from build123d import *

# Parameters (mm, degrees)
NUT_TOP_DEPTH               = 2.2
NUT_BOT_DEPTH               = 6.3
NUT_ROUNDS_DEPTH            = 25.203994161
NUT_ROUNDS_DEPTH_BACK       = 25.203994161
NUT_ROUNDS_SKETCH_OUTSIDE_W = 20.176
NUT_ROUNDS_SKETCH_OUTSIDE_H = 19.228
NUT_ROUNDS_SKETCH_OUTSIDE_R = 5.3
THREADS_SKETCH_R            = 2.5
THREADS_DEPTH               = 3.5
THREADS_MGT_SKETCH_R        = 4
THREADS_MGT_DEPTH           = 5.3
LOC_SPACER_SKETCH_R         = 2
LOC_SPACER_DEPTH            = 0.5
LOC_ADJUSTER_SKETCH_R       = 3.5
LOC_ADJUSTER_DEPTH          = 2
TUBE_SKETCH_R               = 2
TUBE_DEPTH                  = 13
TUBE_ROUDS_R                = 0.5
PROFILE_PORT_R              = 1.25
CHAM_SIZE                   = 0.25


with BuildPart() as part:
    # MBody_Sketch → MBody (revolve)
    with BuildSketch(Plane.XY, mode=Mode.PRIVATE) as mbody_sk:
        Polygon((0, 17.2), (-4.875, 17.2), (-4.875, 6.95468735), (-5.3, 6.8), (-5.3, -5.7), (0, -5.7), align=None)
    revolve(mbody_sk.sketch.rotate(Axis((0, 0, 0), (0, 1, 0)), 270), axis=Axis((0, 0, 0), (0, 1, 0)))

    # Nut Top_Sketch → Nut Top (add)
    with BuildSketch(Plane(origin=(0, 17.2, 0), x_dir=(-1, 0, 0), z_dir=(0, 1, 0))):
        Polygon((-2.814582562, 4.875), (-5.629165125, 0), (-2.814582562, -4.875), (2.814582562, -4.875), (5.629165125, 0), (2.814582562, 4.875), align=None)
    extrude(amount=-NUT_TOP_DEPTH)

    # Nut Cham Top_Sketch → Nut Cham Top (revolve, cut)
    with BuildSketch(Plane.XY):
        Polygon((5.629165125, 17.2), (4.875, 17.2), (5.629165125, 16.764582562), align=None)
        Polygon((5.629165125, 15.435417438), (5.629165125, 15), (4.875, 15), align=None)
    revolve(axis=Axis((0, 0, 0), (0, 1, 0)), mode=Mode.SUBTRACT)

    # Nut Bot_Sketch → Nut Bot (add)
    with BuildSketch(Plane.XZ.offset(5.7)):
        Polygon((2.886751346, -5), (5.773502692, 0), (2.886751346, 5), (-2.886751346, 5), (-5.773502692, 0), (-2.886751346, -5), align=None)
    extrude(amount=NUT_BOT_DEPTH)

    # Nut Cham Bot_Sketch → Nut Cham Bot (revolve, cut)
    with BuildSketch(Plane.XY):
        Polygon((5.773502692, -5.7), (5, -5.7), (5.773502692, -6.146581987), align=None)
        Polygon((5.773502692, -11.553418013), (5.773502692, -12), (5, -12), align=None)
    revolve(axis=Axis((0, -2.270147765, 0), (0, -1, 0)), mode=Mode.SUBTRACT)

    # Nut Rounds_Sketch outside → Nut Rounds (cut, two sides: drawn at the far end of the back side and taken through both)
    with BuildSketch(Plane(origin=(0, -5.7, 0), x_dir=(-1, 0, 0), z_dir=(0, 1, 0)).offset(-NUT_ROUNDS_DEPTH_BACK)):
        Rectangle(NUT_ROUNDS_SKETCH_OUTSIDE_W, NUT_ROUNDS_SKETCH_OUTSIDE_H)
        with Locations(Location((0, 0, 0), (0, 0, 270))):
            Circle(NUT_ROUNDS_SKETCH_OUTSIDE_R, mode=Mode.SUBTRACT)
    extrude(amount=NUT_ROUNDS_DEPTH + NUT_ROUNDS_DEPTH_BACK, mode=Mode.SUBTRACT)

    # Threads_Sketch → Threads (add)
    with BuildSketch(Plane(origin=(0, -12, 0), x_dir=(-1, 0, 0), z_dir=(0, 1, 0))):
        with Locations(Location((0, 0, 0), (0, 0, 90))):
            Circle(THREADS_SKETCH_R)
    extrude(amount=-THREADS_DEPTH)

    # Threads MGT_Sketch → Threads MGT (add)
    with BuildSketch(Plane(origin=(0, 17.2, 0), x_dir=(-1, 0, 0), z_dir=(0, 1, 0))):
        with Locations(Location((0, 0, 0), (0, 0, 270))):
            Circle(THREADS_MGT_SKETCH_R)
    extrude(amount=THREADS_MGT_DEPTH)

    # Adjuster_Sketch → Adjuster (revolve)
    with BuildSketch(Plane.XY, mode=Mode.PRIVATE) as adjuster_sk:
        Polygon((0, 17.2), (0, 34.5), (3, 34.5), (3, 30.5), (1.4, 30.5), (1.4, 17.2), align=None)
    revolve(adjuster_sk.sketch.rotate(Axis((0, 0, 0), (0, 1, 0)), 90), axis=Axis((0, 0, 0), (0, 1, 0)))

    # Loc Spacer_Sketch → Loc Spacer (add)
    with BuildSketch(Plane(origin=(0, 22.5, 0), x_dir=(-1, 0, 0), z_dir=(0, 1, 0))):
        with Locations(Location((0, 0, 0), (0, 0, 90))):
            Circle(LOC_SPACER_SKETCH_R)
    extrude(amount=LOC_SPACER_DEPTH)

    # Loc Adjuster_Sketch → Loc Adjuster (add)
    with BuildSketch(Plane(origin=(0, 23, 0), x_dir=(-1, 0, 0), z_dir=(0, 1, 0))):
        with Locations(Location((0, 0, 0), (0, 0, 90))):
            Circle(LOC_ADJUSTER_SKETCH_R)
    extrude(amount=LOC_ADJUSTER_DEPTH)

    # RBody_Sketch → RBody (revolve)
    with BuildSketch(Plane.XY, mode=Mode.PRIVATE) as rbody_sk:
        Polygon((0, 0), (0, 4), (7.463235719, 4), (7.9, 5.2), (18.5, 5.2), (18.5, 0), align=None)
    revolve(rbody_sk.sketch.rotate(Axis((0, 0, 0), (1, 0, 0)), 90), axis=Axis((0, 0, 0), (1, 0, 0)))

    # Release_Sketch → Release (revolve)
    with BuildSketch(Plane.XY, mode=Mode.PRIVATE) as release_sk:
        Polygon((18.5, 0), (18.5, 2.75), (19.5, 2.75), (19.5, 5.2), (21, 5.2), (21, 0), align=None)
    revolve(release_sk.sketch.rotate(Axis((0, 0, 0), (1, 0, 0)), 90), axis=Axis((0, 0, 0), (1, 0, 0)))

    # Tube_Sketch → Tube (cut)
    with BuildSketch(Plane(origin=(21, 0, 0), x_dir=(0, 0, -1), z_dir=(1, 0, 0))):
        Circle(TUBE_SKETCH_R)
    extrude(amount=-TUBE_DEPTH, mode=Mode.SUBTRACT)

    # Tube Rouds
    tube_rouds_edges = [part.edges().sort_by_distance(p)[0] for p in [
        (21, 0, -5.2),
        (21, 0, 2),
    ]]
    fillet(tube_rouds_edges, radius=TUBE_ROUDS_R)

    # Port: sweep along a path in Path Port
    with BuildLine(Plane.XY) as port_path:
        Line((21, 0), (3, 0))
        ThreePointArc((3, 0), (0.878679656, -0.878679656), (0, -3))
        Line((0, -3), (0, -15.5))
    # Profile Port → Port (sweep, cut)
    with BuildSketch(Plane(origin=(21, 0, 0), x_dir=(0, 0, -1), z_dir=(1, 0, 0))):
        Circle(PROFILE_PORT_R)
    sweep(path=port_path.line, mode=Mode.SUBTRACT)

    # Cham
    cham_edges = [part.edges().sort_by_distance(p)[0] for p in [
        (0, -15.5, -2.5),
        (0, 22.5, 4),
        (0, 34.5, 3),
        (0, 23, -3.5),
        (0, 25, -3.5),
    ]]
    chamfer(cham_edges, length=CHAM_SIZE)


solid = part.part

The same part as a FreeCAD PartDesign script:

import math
import FreeCAD as App
import Part
import Sketcher

V = App.Vector
Q = App.Units.Quantity


def edges_at(feature, points):
    """Names of the edges that pass closest to the given points."""
    edges = feature.Shape.Edges
    near = lambda p: min(range(len(edges)), key=lambda i: edges[i].distToShape(Part.Vertex(*p))[0])
    return sorted({f"Edge{near(p) + 1}" for p in points})

doc = App.newDocument("Part")
body = doc.addObject("PartDesign::Body", "Body")

# Sketch on XY plane
sketch1 = doc.addObject("Sketcher::SketchObject", "Sketch")
body.addObject(sketch1)
sketch1.AttachmentSupport = (doc.XY_Plane, [""])
sketch1.MapMode = "FlatFace"
sketch1.addGeometry(Part.LineSegment(V(0, 17.2, 0), V(-4.88, 17.2, 0)), False)
sketch1.addGeometry(Part.LineSegment(V(-4.88, 17.2, 0), V(-4.88, 6.95, 0)), False)
sketch1.addGeometry(Part.LineSegment(V(-4.88, 6.95, 0), V(-5.3, 6.8, 0)), False)
sketch1.addGeometry(Part.LineSegment(V(-5.3, 6.8, 0), V(-5.3, -5.7, 0)), False)
sketch1.addGeometry(Part.LineSegment(V(-5.3, -5.7, 0), V(0, -5.7, 0)), False)
sketch1.addGeometry(Part.LineSegment(V(0, -5.7, 0), V(0, 17.2, 0)), False)
sketch1.addConstraint(Sketcher.Constraint("Coincident", 0, 2, 1, 1))
sketch1.addConstraint(Sketcher.Constraint("Coincident", 1, 2, 2, 1))
sketch1.addConstraint(Sketcher.Constraint("Coincident", 2, 2, 3, 1))
sketch1.addConstraint(Sketcher.Constraint("Coincident", 3, 2, 4, 1))
sketch1.addConstraint(Sketcher.Constraint("Coincident", 4, 2, 5, 1))
sketch1.addConstraint(Sketcher.Constraint("Coincident", 5, 2, 0, 1))
sketch1.addConstraint(Sketcher.Constraint("Horizontal", 0))
sketch1.addConstraint(Sketcher.Constraint("Vertical", 1))
sketch1.addConstraint(Sketcher.Constraint("Vertical", 3))
sketch1.addConstraint(Sketcher.Constraint("Horizontal", 4))
sketch1.addConstraint(Sketcher.Constraint("Vertical", 5))
sketch1.addConstraint(Sketcher.Constraint("PointOnObject", 4, 2, -2))
sketch1.addConstraint(Sketcher.Constraint("Angle", 2, Q("-160 deg")))
sketch1.addConstraint(Sketcher.Constraint("DistanceX", 4, 1, 4, 2, Q("5.3 mm")))
sketch1.addConstraint(Sketcher.Constraint("DistanceY", 3, 2, 3, 1, Q("12.5 mm")))
sketch1.addConstraint(Sketcher.Constraint("DistanceY", 5, 1, 5, 2, Q("22.9 mm")))
sketch1.addConstraint(Sketcher.Constraint("DistanceY", -1, 1, 0, 2, Q("17.2 mm")))
sketch1.addConstraint(Sketcher.Constraint("DistanceX", 0, 2, 0, 1, Q("4.875 mm")))
revolution = doc.addObject("PartDesign::Revolution", "Revolution")
body.addObject(revolution)
revolution.Profile = sketch1
revolution.ReferenceAxis = (sketch1, ["V_Axis"])
revolution.Angle = 360

# Sketch on XZ plane
sketch2 = doc.addObject("Sketcher::SketchObject", "Sketch001")
body.addObject(sketch2)
sketch2.AttachmentSupport = (doc.XZ_Plane, [""])
sketch2.MapMode = "FlatFace"
sketch2.AttachmentOffset = App.Placement(V(0, 0, -17.2), App.Rotation())
sketch2.addGeometry(Part.LineSegment(V(3, 5, 0), V(6, 0, 0)), False)
sketch2.addGeometry(Part.LineSegment(V(6, 0, 0), V(3, -5, 0)), False)
sketch2.addGeometry(Part.LineSegment(V(3, -5, 0), V(-3, -5, 0)), False)
sketch2.addGeometry(Part.LineSegment(V(-3, -5, 0), V(-6, 0, 0)), False)
sketch2.addGeometry(Part.LineSegment(V(-6, 0, 0), V(-3, 5, 0)), False)
sketch2.addGeometry(Part.LineSegment(V(-3, 5, 0), V(3, 5, 0)), False)
sketch2.addConstraint(Sketcher.Constraint("Coincident", 0, 2, 1, 1))
sketch2.addConstraint(Sketcher.Constraint("Coincident", 1, 2, 2, 1))
sketch2.addConstraint(Sketcher.Constraint("Coincident", 2, 2, 3, 1))
sketch2.addConstraint(Sketcher.Constraint("Coincident", 3, 2, 4, 1))
sketch2.addConstraint(Sketcher.Constraint("Coincident", 4, 2, 5, 1))
sketch2.addConstraint(Sketcher.Constraint("Coincident", 5, 2, 0, 1))
sketch2.addConstraint(Sketcher.Constraint("Horizontal", 2))
sketch2.addConstraint(Sketcher.Constraint("Horizontal", 5))
sketch2.addConstraint(Sketcher.Constraint("Symmetric", 0, 2, 3, 2, -1, 1))
sketch2.addConstraint(Sketcher.Constraint("Symmetric", 1, 2, 4, 2, -1, 1))
sketch2.addConstraint(Sketcher.Constraint("PointOnObject", 0, 2, -1))
sketch2.addConstraint(Sketcher.Constraint("Parallel", 0, 3))
sketch2.addConstraint(Sketcher.Constraint("Vertical", 2, 2, 4, 2))
sketch2.addConstraint(Sketcher.Constraint("Angle", 0, Q("-60 deg")))
sketch2.addConstraint(Sketcher.Constraint("DistanceY", 2, 2, 4, 2, Q("9.75 mm")))
sketch2.addConstraint(Sketcher.Constraint("DistanceX", 2, 2, 2, 1, Q("5.629165 mm")))
pad1 = doc.addObject("PartDesign::Pad", "Pad")
body.addObject(pad1)
pad1.Profile = sketch2
pad1.Length = 2.2

# Sketch on XY plane
sketch3 = doc.addObject("Sketcher::SketchObject", "Sketch002")
body.addObject(sketch3)
sketch3.AttachmentSupport = (doc.XY_Plane, [""])
sketch3.MapMode = "FlatFace"
sketch3.addGeometry(Part.LineSegment(V(5.63, 17.2, 0), V(4.88, 17.2, 0)), False)
sketch3.addGeometry(Part.LineSegment(V(4.88, 17.2, 0), V(5.63, 16.76, 0)), False)
sketch3.addGeometry(Part.LineSegment(V(5.63, 16.76, 0), V(5.63, 17.2, 0)), False)
sketch3.addGeometry(Part.LineSegment(V(5.63, 15, 0), V(5.63, 15.44, 0)), False)
sketch3.addGeometry(Part.LineSegment(V(5.63, 15.44, 0), V(4.88, 15, 0)), False)
sketch3.addGeometry(Part.LineSegment(V(4.88, 15, 0), V(5.63, 15, 0)), False)
sketch3.addConstraint(Sketcher.Constraint("Coincident", 0, 2, 1, 1))
sketch3.addConstraint(Sketcher.Constraint("Coincident", 1, 2, 2, 1))
sketch3.addConstraint(Sketcher.Constraint("Coincident", 2, 2, 0, 1))
sketch3.addConstraint(Sketcher.Constraint("Coincident", 3, 2, 4, 1))
sketch3.addConstraint(Sketcher.Constraint("Coincident", 4, 2, 5, 1))
sketch3.addConstraint(Sketcher.Constraint("Coincident", 5, 2, 3, 1))
sketch3.addConstraint(Sketcher.Constraint("Horizontal", 0))
sketch3.addConstraint(Sketcher.Constraint("Vertical", 2))
sketch3.addConstraint(Sketcher.Constraint("Vertical", 3))
sketch3.addConstraint(Sketcher.Constraint("Horizontal", 5))
sketch3.addConstraint(Sketcher.Constraint("Vertical", 2, 2, 3, 2))
sketch3.addConstraint(Sketcher.Constraint("Vertical", 0, 2, 4, 2))
sketch3.addConstraint(Sketcher.Constraint("Equal", 2, 3))
sketch3.addConstraint(Sketcher.Constraint("Angle", 1, Q("-30 deg")))
sketch3.addConstraint(Sketcher.Constraint("DistanceY", -1, 1, 4, 2, Q("15 mm")))
sketch3.addConstraint(Sketcher.Constraint("DistanceY", -1, 1, 0, 2, Q("17.2 mm")))
sketch3.addConstraint(Sketcher.Constraint("DistanceX", -1, 1, 0, 2, Q("4.875 mm")))
sketch3.addConstraint(Sketcher.Constraint("DistanceX", 0, 2, 0, 1, Q("0.754165 mm")))
groove = doc.addObject("PartDesign::Groove", "Groove")
body.addObject(groove)
groove.Profile = sketch3
groove.ReferenceAxis = (sketch3, ["V_Axis"])
groove.Angle = 360

# Sketch on XZ plane
sketch4 = doc.addObject("Sketcher::SketchObject", "Sketch003")
body.addObject(sketch4)
sketch4.AttachmentSupport = (doc.XZ_Plane, [""])
sketch4.MapMode = "FlatFace"
sketch4.AttachmentOffset = App.Placement(V(0, 0, 5.7), App.Rotation())
sketch4.addGeometry(Part.LineSegment(V(3, -5, 0), V(6, 0, 0)), False)
sketch4.addGeometry(Part.LineSegment(V(6, 0, 0), V(3, 5, 0)), False)
sketch4.addGeometry(Part.LineSegment(V(3, 5, 0), V(-3, 5, 0)), False)
sketch4.addGeometry(Part.LineSegment(V(-3, 5, 0), V(-6, 0, 0)), False)
sketch4.addGeometry(Part.LineSegment(V(-6, 0, 0), V(-3, -5, 0)), False)
sketch4.addGeometry(Part.LineSegment(V(-3, -5, 0), V(3, -5, 0)), False)
sketch4.addConstraint(Sketcher.Constraint("Coincident", 0, 2, 1, 1))
sketch4.addConstraint(Sketcher.Constraint("Coincident", 1, 2, 2, 1))
sketch4.addConstraint(Sketcher.Constraint("Coincident", 2, 2, 3, 1))
sketch4.addConstraint(Sketcher.Constraint("Coincident", 3, 2, 4, 1))
sketch4.addConstraint(Sketcher.Constraint("Coincident", 4, 2, 5, 1))
sketch4.addConstraint(Sketcher.Constraint("Coincident", 5, 2, 0, 1))
sketch4.addConstraint(Sketcher.Constraint("Horizontal", 2))
sketch4.addConstraint(Sketcher.Constraint("Horizontal", 5))
sketch4.addConstraint(Sketcher.Constraint("Symmetric", 0, 2, 3, 2, -1, 1))
sketch4.addConstraint(Sketcher.Constraint("Symmetric", 1, 2, 4, 2, -1, 1))
sketch4.addConstraint(Sketcher.Constraint("PointOnObject", 0, 2, -1))
sketch4.addConstraint(Sketcher.Constraint("Parallel", 0, 3))
sketch4.addConstraint(Sketcher.Constraint("Vertical", 2, 2, 4, 2))
sketch4.addConstraint(Sketcher.Constraint("Angle", 0, Q("60 deg")))
sketch4.addConstraint(Sketcher.Constraint("DistanceY", -1, 1, 1, 2, Q("5 mm")))
sketch4.addConstraint(Sketcher.Constraint("DistanceX", 2, 2, 2, 1, Q("5.773503 mm")))
pad2 = doc.addObject("PartDesign::Pad", "Pad001")
body.addObject(pad2)
pad2.Profile = sketch4
pad2.Length = 6.3

# Sketch on XY plane
sketch5 = doc.addObject("Sketcher::SketchObject", "Sketch004")
body.addObject(sketch5)
sketch5.AttachmentSupport = (doc.XY_Plane, [""])
sketch5.MapMode = "FlatFace"
sketch5.addGeometry(Part.LineSegment(V(5.77, -5.7, 0), V(5, -5.7, 0)), False)
sketch5.addGeometry(Part.LineSegment(V(5, -5.7, 0), V(5.77, -6.15, 0)), False)
sketch5.addGeometry(Part.LineSegment(V(5.77, -6.15, 0), V(5.77, -5.7, 0)), False)
sketch5.addGeometry(Part.LineSegment(V(5.77, -12, 0), V(5.77, -11.55, 0)), False)
sketch5.addGeometry(Part.LineSegment(V(5.77, -11.55, 0), V(5, -12, 0)), False)
sketch5.addGeometry(Part.LineSegment(V(5, -12, 0), V(5.77, -12, 0)), False)
sketch5.addConstraint(Sketcher.Constraint("Coincident", 0, 2, 1, 1))
sketch5.addConstraint(Sketcher.Constraint("Coincident", 1, 2, 2, 1))
sketch5.addConstraint(Sketcher.Constraint("Coincident", 2, 2, 0, 1))
sketch5.addConstraint(Sketcher.Constraint("Coincident", 3, 2, 4, 1))
sketch5.addConstraint(Sketcher.Constraint("Coincident", 4, 2, 5, 1))
sketch5.addConstraint(Sketcher.Constraint("Coincident", 5, 2, 3, 1))
sketch5.addConstraint(Sketcher.Constraint("Horizontal", 0))
sketch5.addConstraint(Sketcher.Constraint("Vertical", 2))
sketch5.addConstraint(Sketcher.Constraint("Vertical", 3))
sketch5.addConstraint(Sketcher.Constraint("Horizontal", 5))
sketch5.addConstraint(Sketcher.Constraint("Vertical", 2, 2, 3, 2))
sketch5.addConstraint(Sketcher.Constraint("Vertical", 0, 2, 4, 2))
sketch5.addConstraint(Sketcher.Constraint("Equal", 2, 3))
sketch5.addConstraint(Sketcher.Constraint("Angle", 1, Q("-30 deg")))
sketch5.addConstraint(Sketcher.Constraint("DistanceX", -1, 1, 0, 2, Q("5 mm")))
sketch5.addConstraint(Sketcher.Constraint("DistanceY", 4, 2, -1, 1, Q("12 mm")))
sketch5.addConstraint(Sketcher.Constraint("DistanceY", 0, 2, -1, 1, Q("5.7 mm")))
sketch5.addConstraint(Sketcher.Constraint("DistanceY", 2, 1, 2, 2, Q("0.446582 mm")))
groove2 = doc.addObject("PartDesign::Groove", "Groove001")
body.addObject(groove2)
groove2.Profile = sketch5
groove2.ReferenceAxis = (sketch5, ["V_Axis"])
groove2.Angle = 360

# Sketch on XZ plane
sketch6 = doc.addObject("Sketcher::SketchObject", "Sketch005")
body.addObject(sketch6)
sketch6.AttachmentSupport = (doc.XZ_Plane, [""])
sketch6.MapMode = "FlatFace"
sketch6.AttachmentOffset = App.Placement(V(0, 0, 5.7), App.Rotation())
sketch6.addGeometry(Part.LineSegment(V(10, 10, 0), V(10, -10, 0)), False)
sketch6.addGeometry(Part.LineSegment(V(10, -10, 0), V(-10, -10, 0)), False)
sketch6.addGeometry(Part.LineSegment(V(-10, -10, 0), V(-10, 10, 0)), False)
sketch6.addGeometry(Part.LineSegment(V(-10, 10, 0), V(10, 10, 0)), False)
sketch6.addGeometry(Part.Circle(V(0, 0, 0), V(0, 0, 1), 5), False)
sketch6.addConstraint(Sketcher.Constraint("Coincident", 0, 2, 1, 1))
sketch6.addConstraint(Sketcher.Constraint("Coincident", 1, 2, 2, 1))
sketch6.addConstraint(Sketcher.Constraint("Coincident", 2, 2, 3, 1))
sketch6.addConstraint(Sketcher.Constraint("Coincident", 3, 2, 0, 1))
sketch6.addConstraint(Sketcher.Constraint("Vertical", 0))
sketch6.addConstraint(Sketcher.Constraint("Horizontal", 1))
sketch6.addConstraint(Sketcher.Constraint("Vertical", 2))
sketch6.addConstraint(Sketcher.Constraint("Horizontal", 3))
sketch6.addConstraint(Sketcher.Constraint("Coincident", 4, 3, -1, 1))
sketch6.addConstraint(Sketcher.Constraint("Symmetric", 0, 2, 2, 2, -1, 1))
sketch6.addConstraint(Sketcher.Constraint("Diameter", 4, Q("10.6 mm")))
sketch6.addConstraint(Sketcher.Constraint("DistanceX", 1, 2, 1, 1, Q("20.176 mm")))
sketch6.addConstraint(Sketcher.Constraint("DistanceY", 0, 2, 0, 1, Q("19.228 mm")))
pocket1 = doc.addObject("PartDesign::Pocket", "Pocket")
body.addObject(pocket1)
pocket1.Profile = sketch6
pocket1.Type = "ThroughAll"
pocket1.Midplane = True

# Sketch on XZ plane
sketch7 = doc.addObject("Sketcher::SketchObject", "Sketch006")
body.addObject(sketch7)
sketch7.AttachmentSupport = (doc.XZ_Plane, [""])
sketch7.MapMode = "FlatFace"
sketch7.AttachmentOffset = App.Placement(V(0, 0, 12), App.Rotation())
sketch7.addGeometry(Part.Circle(V(0, 0, 0), V(0, 0, 1), 2.5), False)
sketch7.addConstraint(Sketcher.Constraint("Coincident", 0, 3, -1, 1))
sketch7.addConstraint(Sketcher.Constraint("Diameter", 0, Q("5 mm")))
pad3 = doc.addObject("PartDesign::Pad", "Pad002")
body.addObject(pad3)
pad3.Profile = sketch7
pad3.Length = 3.5

# Sketch on XZ plane
sketch8 = doc.addObject("Sketcher::SketchObject", "Sketch007")
body.addObject(sketch8)
sketch8.AttachmentSupport = (doc.XZ_Plane, [""])
sketch8.MapMode = "FlatFace"
sketch8.AttachmentOffset = App.Placement(V(0, 0, -17.2), App.Rotation())
sketch8.addGeometry(Part.Circle(V(0, 0, 0), V(0, 0, 1), 4), False)
sketch8.addConstraint(Sketcher.Constraint("Coincident", 0, 3, -1, 1))
sketch8.addConstraint(Sketcher.Constraint("Diameter", 0, Q("8 mm")))
pad4 = doc.addObject("PartDesign::Pad", "Pad003")
body.addObject(pad4)
pad4.Profile = sketch8
pad4.Length = 5.3
pad4.Reversed = True

# Sketch on XY plane
sketch9 = doc.addObject("Sketcher::SketchObject", "Sketch008")
body.addObject(sketch9)
sketch9.AttachmentSupport = (doc.XY_Plane, [""])
sketch9.MapMode = "FlatFace"
sketch9.addGeometry(Part.LineSegment(V(0, 34.5, 0), V(0, 17.2, 0)), False)
sketch9.addGeometry(Part.LineSegment(V(0, 17.2, 0), V(1.4, 17.2, 0)), False)
sketch9.addGeometry(Part.LineSegment(V(1.4, 17.2, 0), V(1.4, 30.5, 0)), False)
sketch9.addGeometry(Part.LineSegment(V(1.4, 30.5, 0), V(3, 30.5, 0)), False)
sketch9.addGeometry(Part.LineSegment(V(3, 30.5, 0), V(3, 34.5, 0)), False)
sketch9.addGeometry(Part.LineSegment(V(3, 34.5, 0), V(0, 34.5, 0)), False)
sketch9.addConstraint(Sketcher.Constraint("Coincident", 0, 2, 1, 1))
sketch9.addConstraint(Sketcher.Constraint("Coincident", 1, 2, 2, 1))
sketch9.addConstraint(Sketcher.Constraint("Coincident", 2, 2, 3, 1))
sketch9.addConstraint(Sketcher.Constraint("Coincident", 3, 2, 4, 1))
sketch9.addConstraint(Sketcher.Constraint("Coincident", 4, 2, 5, 1))
sketch9.addConstraint(Sketcher.Constraint("Coincident", 5, 2, 0, 1))
sketch9.addConstraint(Sketcher.Constraint("Vertical", 0))
sketch9.addConstraint(Sketcher.Constraint("Horizontal", 1))
sketch9.addConstraint(Sketcher.Constraint("Vertical", 2))
sketch9.addConstraint(Sketcher.Constraint("Horizontal", 3))
sketch9.addConstraint(Sketcher.Constraint("Vertical", 4))
sketch9.addConstraint(Sketcher.Constraint("Horizontal", 5))
sketch9.addConstraint(Sketcher.Constraint("PointOnObject", 0, 2, -2))
sketch9.addConstraint(Sketcher.Constraint("DistanceX", 5, 2, 5, 1, Q("3 mm")))
sketch9.addConstraint(Sketcher.Constraint("DistanceY", 4, 1, 4, 2, Q("4 mm")))
sketch9.addConstraint(Sketcher.Constraint("DistanceX", 1, 1, 1, 2, Q("1.4 mm")))
sketch9.addConstraint(Sketcher.Constraint("DistanceY", 0, 2, 0, 1, Q("17.3 mm")))
sketch9.addConstraint(Sketcher.Constraint("DistanceY", -1, 1, 0, 2, Q("17.2 mm")))
revolution2 = doc.addObject("PartDesign::Revolution", "Revolution001")
body.addObject(revolution2)
revolution2.Profile = sketch9
revolution2.ReferenceAxis = (sketch9, ["V_Axis"])
revolution2.Angle = 360

# Sketch on XZ plane
sketch10 = doc.addObject("Sketcher::SketchObject", "Sketch009")
body.addObject(sketch10)
sketch10.AttachmentSupport = (doc.XZ_Plane, [""])
sketch10.MapMode = "FlatFace"
sketch10.AttachmentOffset = App.Placement(V(0, 0, -22.5), App.Rotation())
sketch10.addGeometry(Part.Circle(V(0, 0, 0), V(0, 0, 1), 2), False)
sketch10.addConstraint(Sketcher.Constraint("Coincident", 0, 3, -1, 1))
sketch10.addConstraint(Sketcher.Constraint("Diameter", 0, Q("4 mm")))
pad5 = doc.addObject("PartDesign::Pad", "Pad004")
body.addObject(pad5)
pad5.Profile = sketch10
pad5.Length = 0.5
pad5.Reversed = True

# Sketch on XZ plane
sketch11 = doc.addObject("Sketcher::SketchObject", "Sketch010")
body.addObject(sketch11)
sketch11.AttachmentSupport = (doc.XZ_Plane, [""])
sketch11.MapMode = "FlatFace"
sketch11.AttachmentOffset = App.Placement(V(0, 0, -23), App.Rotation())
sketch11.addGeometry(Part.Circle(V(0, 0, 0), V(0, 0, 1), 3.5), False)
sketch11.addConstraint(Sketcher.Constraint("Coincident", 0, 3, -1, 1))
sketch11.addConstraint(Sketcher.Constraint("Diameter", 0, Q("7 mm")))
pad6 = doc.addObject("PartDesign::Pad", "Pad005")
body.addObject(pad6)
pad6.Profile = sketch11
pad6.Length = 2
pad6.Reversed = True

# Sketch on XY plane
sketch12 = doc.addObject("Sketcher::SketchObject", "Sketch011")
body.addObject(sketch12)
sketch12.AttachmentSupport = (doc.XY_Plane, [""])
sketch12.MapMode = "FlatFace"
sketch12.addGeometry(Part.LineSegment(V(0, 4, 0), V(0, 0, 0)), False)
sketch12.addGeometry(Part.LineSegment(V(0, 0, 0), V(18.5, 0, 0)), False)
sketch12.addGeometry(Part.LineSegment(V(18.5, 0, 0), V(18.5, 5.2, 0)), False)
sketch12.addGeometry(Part.LineSegment(V(18.5, 5.2, 0), V(7.9, 5.2, 0)), False)
sketch12.addGeometry(Part.LineSegment(V(7.9, 5.2, 0), V(7.5, 4, 0)), False)
sketch12.addGeometry(Part.LineSegment(V(7.5, 4, 0), V(0, 4, 0)), False)
sketch12.addConstraint(Sketcher.Constraint("Coincident", 0, 2, 1, 1))
sketch12.addConstraint(Sketcher.Constraint("Coincident", 1, 2, 2, 1))
sketch12.addConstraint(Sketcher.Constraint("Coincident", 2, 2, 3, 1))
sketch12.addConstraint(Sketcher.Constraint("Coincident", 3, 2, 4, 1))
sketch12.addConstraint(Sketcher.Constraint("Coincident", 4, 2, 5, 1))
sketch12.addConstraint(Sketcher.Constraint("Coincident", 5, 2, 0, 1))
sketch12.addConstraint(Sketcher.Constraint("Vertical", 0))
sketch12.addConstraint(Sketcher.Constraint("Horizontal", 1))
sketch12.addConstraint(Sketcher.Constraint("Vertical", 2))
sketch12.addConstraint(Sketcher.Constraint("Horizontal", 3))
sketch12.addConstraint(Sketcher.Constraint("Horizontal", 5))
sketch12.addConstraint(Sketcher.Constraint("Coincident", 0, 2, -1, 1))
sketch12.addConstraint(Sketcher.Constraint("DistanceY", 0, 2, 0, 1, Q("4 mm")))
sketch12.addConstraint(Sketcher.Constraint("Angle", 4, Q("-110 deg")))
sketch12.addConstraint(Sketcher.Constraint("DistanceX", 1, 1, 1, 2, Q("18.5 mm")))
sketch12.addConstraint(Sketcher.Constraint("DistanceX", 3, 2, 3, 1, Q("10.6 mm")))
sketch12.addConstraint(Sketcher.Constraint("DistanceY", 2, 1, 2, 2, Q("5.2 mm")))
revolution3 = doc.addObject("PartDesign::Revolution", "Revolution002")
body.addObject(revolution3)
revolution3.Profile = sketch12
revolution3.ReferenceAxis = (sketch12, ["H_Axis"])
revolution3.Angle = 360

# Sketch on XY plane
sketch13 = doc.addObject("Sketcher::SketchObject", "Sketch012")
body.addObject(sketch13)
sketch13.AttachmentSupport = (doc.XY_Plane, [""])
sketch13.MapMode = "FlatFace"
sketch13.addGeometry(Part.LineSegment(V(18.5, 2.8, 0), V(18.5, 0, 0)), False)
sketch13.addGeometry(Part.LineSegment(V(18.5, 0, 0), V(21, 0, 0)), False)
sketch13.addGeometry(Part.LineSegment(V(21, 0, 0), V(21, 5.2, 0)), False)
sketch13.addGeometry(Part.LineSegment(V(21, 5.2, 0), V(19.5, 5.2, 0)), False)
sketch13.addGeometry(Part.LineSegment(V(19.5, 5.2, 0), V(19.5, 2.8, 0)), False)
sketch13.addGeometry(Part.LineSegment(V(19.5, 2.8, 0), V(18.5, 2.8, 0)), False)
sketch13.addConstraint(Sketcher.Constraint("Coincident", 0, 2, 1, 1))
sketch13.addConstraint(Sketcher.Constraint("Coincident", 1, 2, 2, 1))
sketch13.addConstraint(Sketcher.Constraint("Coincident", 2, 2, 3, 1))
sketch13.addConstraint(Sketcher.Constraint("Coincident", 3, 2, 4, 1))
sketch13.addConstraint(Sketcher.Constraint("Coincident", 4, 2, 5, 1))
sketch13.addConstraint(Sketcher.Constraint("Coincident", 5, 2, 0, 1))
sketch13.addConstraint(Sketcher.Constraint("Vertical", 0))
sketch13.addConstraint(Sketcher.Constraint("Horizontal", 1))
sketch13.addConstraint(Sketcher.Constraint("Vertical", 2))
sketch13.addConstraint(Sketcher.Constraint("Horizontal", 3))
sketch13.addConstraint(Sketcher.Constraint("Vertical", 4))
sketch13.addConstraint(Sketcher.Constraint("Horizontal", 5))
sketch13.addConstraint(Sketcher.Constraint("PointOnObject", 0, 2, -1))
sketch13.addConstraint(Sketcher.Constraint("DistanceX", 5, 2, 5, 1, Q("1 mm")))
sketch13.addConstraint(Sketcher.Constraint("DistanceX", 1, 1, 1, 2, Q("2.5 mm")))
sketch13.addConstraint(Sketcher.Constraint("DistanceY", 2, 1, 2, 2, Q("5.2 mm")))
sketch13.addConstraint(Sketcher.Constraint("DistanceX", -1, 1, 1, 2, Q("21 mm")))
sketch13.addConstraint(Sketcher.Constraint("DistanceY", 0, 2, 0, 1, Q("2.75 mm")))
revolution4 = doc.addObject("PartDesign::Revolution", "Revolution003")
body.addObject(revolution4)
revolution4.Profile = sketch13
revolution4.ReferenceAxis = (sketch13, ["H_Axis"])
revolution4.Angle = 360

# Sketch on YZ plane
sketch14 = doc.addObject("Sketcher::SketchObject", "Sketch013")
body.addObject(sketch14)
sketch14.AttachmentSupport = (doc.YZ_Plane, [""])
sketch14.MapMode = "FlatFace"
sketch14.AttachmentOffset = App.Placement(V(0, 0, 21), App.Rotation())
sketch14.addGeometry(Part.Circle(V(0, 0, 0), V(0, 0, 1), 2), False)
sketch14.addConstraint(Sketcher.Constraint("Coincident", 0, 3, -1, 1))
sketch14.addConstraint(Sketcher.Constraint("Diameter", 0, Q("4 mm")))
pocket2 = doc.addObject("PartDesign::Pocket", "Pocket001")
body.addObject(pocket2)
pocket2.Profile = sketch14
pocket2.Length = 13
doc.recompute()

fillet = doc.addObject("PartDesign::Fillet", "Fillet")
body.addObject(fillet)
fillet.Base = (pocket2, edges_at(pocket2, [(21, 0, -5.2), (21, 0, 2)]))
fillet.Radius = 0.5

# Sketch on YZ plane
sketch15 = doc.addObject("Sketcher::SketchObject", "Sketch014")
body.addObject(sketch15)
sketch15.AttachmentSupport = (doc.YZ_Plane, [""])
sketch15.MapMode = "FlatFace"
sketch15.AttachmentOffset = App.Placement(V(0, 0, 21), App.Rotation())
sketch15.addGeometry(Part.Circle(V(0, 0, 0), V(0, 0, 1), 1.2), False)
sketch15.addConstraint(Sketcher.Constraint("Coincident", 0, 3, -1, 1))
sketch15.addConstraint(Sketcher.Constraint("Diameter", 0, Q("2.5 mm")))

# Sketch on XY plane
sketch16 = doc.addObject("Sketcher::SketchObject", "Sketch015")
body.addObject(sketch16)
sketch16.AttachmentSupport = (doc.XY_Plane, [""])
sketch16.MapMode = "FlatFace"
sketch16.addGeometry(Part.LineSegment(V(21, 0, 0), V(3, 0, 0)), False)
sketch16.addGeometry(Part.ArcOfCircle(Part.Circle(V(3, -3, 0), V(0, 0, 1), 3), math.radians(90), math.radians(180)), False)
sketch16.addGeometry(Part.LineSegment(V(0, -3, 0), V(0, -15.5, 0)), False)
sketch16.addConstraint(Sketcher.Constraint("Tangent", 0, 2, 1, 1))
sketch16.addConstraint(Sketcher.Constraint("Tangent", 1, 2, 2, 1))
sketch16.addConstraint(Sketcher.Constraint("Horizontal", 0))
sketch16.addConstraint(Sketcher.Constraint("Vertical", 2))
sketch16.addConstraint(Sketcher.Constraint("PointOnObject", 0, 1, -1))
sketch16.addConstraint(Sketcher.Constraint("PointOnObject", 1, 2, -2))
sketch16.addConstraint(Sketcher.Constraint("Radius", 1, Q("3 mm")))
sketch16.addConstraint(Sketcher.Constraint("DistanceX", 0, 2, 0, 1, Q("18 mm")))
sketch16.addConstraint(Sketcher.Constraint("DistanceY", 2, 2, 2, 1, Q("12.5 mm")))
doc.recompute()

subtractivepipe = doc.addObject("PartDesign::SubtractivePipe", "SubtractivePipe")
body.addObject(subtractivepipe)
subtractivepipe.Profile = sketch15
subtractivepipe.Spine = (sketch16, ["Edge1", "Edge2", "Edge3"])
doc.recompute()

chamfer = doc.addObject("PartDesign::Chamfer", "Chamfer")
body.addObject(chamfer)
chamfer.Base = (subtractivepipe, edges_at(subtractivepipe, [
    (0, -15.5, -2.5),
    (0, 22.5, 4),
    (0, 34.5, 3),
    (0, 23, -3.5),
    (0, 25, -3.5),
]))
chamfer.Size = 0.25

doc.recompute()
